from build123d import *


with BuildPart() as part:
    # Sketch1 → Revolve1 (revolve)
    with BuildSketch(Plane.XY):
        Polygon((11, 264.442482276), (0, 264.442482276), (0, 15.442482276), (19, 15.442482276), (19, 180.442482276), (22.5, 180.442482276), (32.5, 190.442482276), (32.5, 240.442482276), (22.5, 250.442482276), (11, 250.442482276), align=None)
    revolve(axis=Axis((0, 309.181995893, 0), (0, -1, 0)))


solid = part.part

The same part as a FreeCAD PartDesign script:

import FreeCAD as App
import Part
import Sketcher
Q = App.Units.Quantity

doc = App.newDocument("Part")
body = doc.addObject("PartDesign::Body", "Body")

# Sketch on XY plane
sketch1 = doc.addObject("Sketcher::SketchObject", "Sketch")
body.addObject(sketch1)
sketch1.AttachmentSupport = (doc.XY_Plane, [""])
sketch1.MapMode = "FlatFace"
sketch1.addGeometry(Part.LineSegment(App.Vector(11, 264.4, 0), App.Vector(0, 264.4, 0)), False)
sketch1.addGeometry(Part.LineSegment(App.Vector(0, 264.4, 0), App.Vector(0, 15.4, 0)), False)
sketch1.addGeometry(Part.LineSegment(App.Vector(0, 15.4, 0), App.Vector(19, 15.4, 0)), False)
sketch1.addGeometry(Part.LineSegment(App.Vector(19, 15.4, 0), App.Vector(19, 180.4, 0)), False)
sketch1.addGeometry(Part.LineSegment(App.Vector(19, 180.4, 0), App.Vector(22.5, 180.4, 0)), False)
sketch1.addGeometry(Part.LineSegment(App.Vector(22.5, 180.4, 0), App.Vector(32.5, 190.4, 0)), False)
sketch1.addGeometry(Part.LineSegment(App.Vector(32.5, 190.4, 0), App.Vector(32.5, 240.4, 0)), False)
sketch1.addGeometry(Part.LineSegment(App.Vector(32.5, 240.4, 0), App.Vector(22.5, 250.4, 0)), False)
sketch1.addGeometry(Part.LineSegment(App.Vector(22.5, 250.4, 0), App.Vector(11, 250.4, 0)), False)
sketch1.addGeometry(Part.LineSegment(App.Vector(11, 250.4, 0), App.Vector(11, 264.4, 0)), False)
sketch1.addConstraint(Sketcher.Constraint("Coincident", 0, 2, 1, 1))
sketch1.addConstraint(Sketcher.Constraint("Coincident", 1, 2, 2, 1))
sketch1.addConstraint(Sketcher.Constraint("Coincident", 2, 2, 3, 1))
sketch1.addConstraint(Sketcher.Constraint("Coincident", 3, 2, 4, 1))
sketch1.addConstraint(Sketcher.Constraint("Coincident", 4, 2, 5, 1))
sketch1.addConstraint(Sketcher.Constraint("Coincident", 5, 2, 6, 1))
sketch1.addConstraint(Sketcher.Constraint("Coincident", 6, 2, 7, 1))
sketch1.addConstraint(Sketcher.Constraint("Coincident", 7, 2, 8, 1))
sketch1.addConstraint(Sketcher.Constraint("Coincident", 8, 2, 9, 1))
sketch1.addConstraint(Sketcher.Constraint("Coincident", 9, 2, 0, 1))
sketch1.addConstraint(Sketcher.Constraint("Horizontal", 0))
sketch1.addConstraint(Sketcher.Constraint("Vertical", 1))
sketch1.addConstraint(Sketcher.Constraint("Horizontal", 2))
sketch1.addConstraint(Sketcher.Constraint("Vertical", 3))
sketch1.addConstraint(Sketcher.Constraint("Horizontal", 4))
sketch1.addConstraint(Sketcher.Constraint("Vertical", 6))
sketch1.addConstraint(Sketcher.Constraint("Horizontal", 8))
sketch1.addConstraint(Sketcher.Constraint("Vertical", 9))
sketch1.addConstraint(Sketcher.Constraint("PointOnObject", 0, 2, -2))
sketch1.addConstraint(Sketcher.Constraint("Perpendicular", 5, 7))
sketch1.addConstraint(Sketcher.Constraint("Vertical", 4, 2, 7, 2))
sketch1.addConstraint(Sketcher.Constraint("Equal", 5, 7))
sketch1.addConstraint(Sketcher.Constraint("DistanceX", 0, 2, 0, 1, Q("11 mm")))
sketch1.addConstraint(Sketcher.Constraint("DistanceX", 2, 1, 2, 2, Q("19 mm")))
sketch1.addConstraint(Sketcher.Constraint("DistanceY", 1, 2, 1, 1, Q("249 mm")))
sketch1.addConstraint(Sketcher.Constraint("DistanceY", 3, 1, 3, 2, Q("165 mm")))
sketch1.addConstraint(Sketcher.Constraint("DistanceY", 6, 1, 6, 2, Q("50 mm")))
sketch1.addConstraint(Sketcher.Constraint("DistanceY", 9, 1, 9, 2, Q("14 mm")))
sketch1.addConstraint(Sketcher.Constraint("DistanceX", 4, 1, 4, 2, Q("3.5 mm")))
sketch1.addConstraint(Sketcher.Constraint("DistanceY", -1, 1, 0, 2, Q("264.442482 mm")))
revolution = doc.addObject("PartDesign::Revolution", "Revolution")
body.addObject(revolution)
revolution.Profile = sketch1
revolution.ReferenceAxis = (sketch1, ["V_Axis"])
revolution.Angle = 360

doc.recompute()
